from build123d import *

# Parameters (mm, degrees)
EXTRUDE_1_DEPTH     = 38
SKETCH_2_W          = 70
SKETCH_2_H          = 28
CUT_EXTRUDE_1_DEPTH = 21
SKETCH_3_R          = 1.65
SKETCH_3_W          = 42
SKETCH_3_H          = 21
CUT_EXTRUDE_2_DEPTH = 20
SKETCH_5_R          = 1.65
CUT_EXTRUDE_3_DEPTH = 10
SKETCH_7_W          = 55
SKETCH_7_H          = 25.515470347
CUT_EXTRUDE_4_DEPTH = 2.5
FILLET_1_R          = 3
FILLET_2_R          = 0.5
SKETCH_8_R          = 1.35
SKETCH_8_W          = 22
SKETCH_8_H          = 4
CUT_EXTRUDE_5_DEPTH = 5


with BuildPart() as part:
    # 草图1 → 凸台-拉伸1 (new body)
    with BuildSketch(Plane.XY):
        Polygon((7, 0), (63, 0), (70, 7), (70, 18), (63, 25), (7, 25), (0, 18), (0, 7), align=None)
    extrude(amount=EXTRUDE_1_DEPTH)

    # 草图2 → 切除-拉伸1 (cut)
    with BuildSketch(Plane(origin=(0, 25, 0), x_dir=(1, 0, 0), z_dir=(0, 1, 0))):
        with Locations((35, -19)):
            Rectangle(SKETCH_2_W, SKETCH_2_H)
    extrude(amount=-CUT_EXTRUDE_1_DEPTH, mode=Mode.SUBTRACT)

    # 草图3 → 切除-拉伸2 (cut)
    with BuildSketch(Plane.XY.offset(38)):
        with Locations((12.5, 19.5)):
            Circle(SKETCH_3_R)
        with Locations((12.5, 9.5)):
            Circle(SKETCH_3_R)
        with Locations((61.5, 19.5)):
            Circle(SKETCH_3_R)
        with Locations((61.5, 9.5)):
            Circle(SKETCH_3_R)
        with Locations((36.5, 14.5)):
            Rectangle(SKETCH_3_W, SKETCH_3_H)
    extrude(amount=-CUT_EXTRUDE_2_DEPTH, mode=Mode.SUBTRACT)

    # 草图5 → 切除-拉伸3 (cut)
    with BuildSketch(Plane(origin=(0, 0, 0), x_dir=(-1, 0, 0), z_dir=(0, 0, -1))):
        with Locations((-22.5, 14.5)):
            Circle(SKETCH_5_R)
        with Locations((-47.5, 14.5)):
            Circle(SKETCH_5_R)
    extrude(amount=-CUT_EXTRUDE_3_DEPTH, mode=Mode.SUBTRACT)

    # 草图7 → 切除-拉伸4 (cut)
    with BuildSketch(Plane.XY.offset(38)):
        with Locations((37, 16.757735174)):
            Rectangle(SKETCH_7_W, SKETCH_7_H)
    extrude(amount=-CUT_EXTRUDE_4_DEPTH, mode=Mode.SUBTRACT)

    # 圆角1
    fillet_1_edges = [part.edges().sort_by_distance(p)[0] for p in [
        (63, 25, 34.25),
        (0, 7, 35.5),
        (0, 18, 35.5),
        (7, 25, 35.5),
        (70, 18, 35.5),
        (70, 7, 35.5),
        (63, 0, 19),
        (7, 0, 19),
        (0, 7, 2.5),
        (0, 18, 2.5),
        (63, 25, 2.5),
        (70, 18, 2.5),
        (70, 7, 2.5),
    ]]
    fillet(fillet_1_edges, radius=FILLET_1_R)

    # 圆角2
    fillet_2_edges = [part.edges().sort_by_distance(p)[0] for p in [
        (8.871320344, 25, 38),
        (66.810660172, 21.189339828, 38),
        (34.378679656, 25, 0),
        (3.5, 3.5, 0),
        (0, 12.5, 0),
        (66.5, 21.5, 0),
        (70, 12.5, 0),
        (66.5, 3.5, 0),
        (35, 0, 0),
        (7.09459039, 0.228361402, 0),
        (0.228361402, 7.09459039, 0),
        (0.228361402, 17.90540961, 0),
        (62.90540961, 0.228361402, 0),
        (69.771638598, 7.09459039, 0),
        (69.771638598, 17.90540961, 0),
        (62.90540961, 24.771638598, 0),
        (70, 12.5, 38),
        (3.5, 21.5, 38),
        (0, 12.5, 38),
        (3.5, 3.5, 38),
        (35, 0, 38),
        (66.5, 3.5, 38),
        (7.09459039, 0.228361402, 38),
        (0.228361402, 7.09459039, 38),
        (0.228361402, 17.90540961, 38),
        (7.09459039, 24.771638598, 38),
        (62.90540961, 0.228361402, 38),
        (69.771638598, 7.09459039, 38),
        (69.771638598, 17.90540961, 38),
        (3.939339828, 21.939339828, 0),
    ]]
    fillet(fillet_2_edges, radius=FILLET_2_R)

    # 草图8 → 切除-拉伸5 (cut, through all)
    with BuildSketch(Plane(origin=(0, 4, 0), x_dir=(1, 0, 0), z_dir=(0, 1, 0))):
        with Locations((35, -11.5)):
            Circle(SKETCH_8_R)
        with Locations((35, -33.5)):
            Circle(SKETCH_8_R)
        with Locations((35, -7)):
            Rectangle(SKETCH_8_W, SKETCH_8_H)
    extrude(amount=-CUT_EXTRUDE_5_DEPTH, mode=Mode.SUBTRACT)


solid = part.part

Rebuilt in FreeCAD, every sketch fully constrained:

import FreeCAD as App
import Part
import Sketcher


def edges_at(feature, points):
    """Names of the edges that pass closest to the given points."""
    edges = feature.Shape.Edges
    near = lambda p: min(range(len(edges)), key=lambda i: edges[i].distToShape(Part.Vertex(*p))[0])
    return sorted({f"Edge{near(p) + 1}" for p in points})


def add_polygon(sketch, points):
    """Adds a closed chain of lines whose ends are joined by coincident constraints."""
    first, n = sketch.GeometryCount, len(points)
    for a, b in zip(points, points[1:] + points[:1]):
        sketch.addGeometry(Part.LineSegment(App.Vector(*a, 0), App.Vector(*b, 0)), False)
    for i in range(n):
        sketch.addConstraint(Sketcher.Constraint("Coincident", first + i, 2, first + (i + 1) % n, 1))

doc = App.newDocument("Part")
body = doc.addObject("PartDesign::Body", "Body")

sketch1 = body.newObject("Sketcher::SketchObject", "Sketch")
sketch1.AttachmentSupport = (doc.getObject("XY_Plane"), [""])
sketch1.MapMode = "FlatFace"
add_polygon(sketch1, [(7, 0), (63, 0), (70, 7), (70, 18), (63, 25), (7, 25), (0, 18), (0, 7)])
sketch1.addConstraint([
    Sketcher.Constraint("Horizontal", 0),
    Sketcher.Constraint("Vertical", 2),
    Sketcher.Constraint("Horizontal", 4),
    Sketcher.Constraint("Vertical", 6),
    Sketcher.Constraint("PointOnObject", 0, 2, -1),
    Sketcher.Constraint("PointOnObject", 5, 2, -2),
    Sketcher.Constraint("Perpendicular", 1, 3),
    Sketcher.Constraint("Perpendicular", 3, 5),
    Sketcher.Constraint("Perpendicular", 5, 7),
    Sketcher.Constraint("Horizontal", 2, 2, 5, 2),
    Sketcher.Constraint("Horizontal", 1, 2, 6, 2),
    Sketcher.Constraint("Vertical", 0, 2, 3, 2),
    Sketcher.Constraint("Vertical", 4, 2, 7, 2),
    Sketcher.Constraint("DistanceX", 0, 1, 0, 2, 56.0),
    Sketcher.Constraint("DistanceY", 2, 1, 2, 2, 11.0),
    Sketcher.Constraint("DistanceX", -1, 1, 0, 2, 63.0),
])
pad1 = body.newObject("PartDesign::Pad", "Pad")
pad1.Profile = sketch1
pad1.Length = 38

sketch2 = body.newObject("Sketcher::SketchObject", "Sketch001")
sketch2.AttachmentSupport = (doc.getObject("XZ_Plane"), [""])
sketch2.MapMode = "FlatFace"
sketch2.AttachmentOffset = App.Placement(App.Vector(0, 0, -25), App.Rotation())
add_polygon(sketch2, [(0, 5), (0, 33), (70, 33), (70, 5)])
sketch2.addConstraint([
    Sketcher.Constraint("Vertical", 0),
    Sketcher.Constraint("Horizontal", 1),
    Sketcher.Constraint("Vertical", 2),
    Sketcher.Constraint("Horizontal", 3),
    Sketcher.Constraint("PointOnObject", 0, 2, -2),
    Sketcher.Constraint("DistanceX", 1, 1, 1, 2, 70.0),
    Sketcher.Constraint("DistanceY", 0, 1, 0, 2, 28.0),
    Sketcher.Constraint("DistanceY", -1, 1, 0, 2, 33.0),
])
pocket1 = body.newObject("PartDesign::Pocket", "Pocket")
pocket1.Profile = sketch2
pocket1.Length = 21
pocket1.Reversed = True

sketch3 = body.newObject("Sketcher::SketchObject", "Sketch002")
sketch3.AttachmentSupport = (doc.getObject("XY_Plane"), [""])
sketch3.MapMode = "FlatFace"
sketch3.AttachmentOffset = App.Placement(App.Vector(0, 0, 38), App.Rotation())
sketch3.addGeometry(Part.Circle(App.Vector(12.5, 19.5, 0), App.Vector(0, 0, 1), 1.65), False)
sketch3.addGeometry(Part.Circle(App.Vector(12.5, 9.5, 0), App.Vector(0, 0, 1), 1.65), False)
sketch3.addGeometry(Part.Circle(App.Vector(61.5, 19.5, 0), App.Vector(0, 0, 1), 1.65), False)
sketch3.addGeometry(Part.Circle(App.Vector(61.5, 9.5, 0), App.Vector(0, 0, 1), 1.65), False)
add_polygon(sketch3, [(15.5, 25), (15.5, 4), (57.5, 4), (57.5, 25)])
sketch3.addConstraint([
    Sketcher.Constraint("Vertical", 4),
    Sketcher.Constraint("Horizontal", 5),
    Sketcher.Constraint("Vertical", 6),
    Sketcher.Constraint("Horizontal", 7),
    Sketcher.Constraint("Equal", 0, 1),
    Sketcher.Constraint("Equal", 1, 2),
    Sketcher.Constraint("Equal", 2, 3),
    Sketcher.Constraint("Horizontal", 0, 3, 2, 3),
    Sketcher.Constraint("Horizontal", 1, 3, 3, 3),
    Sketcher.Constraint("Vertical", 0, 3, 1, 3),
    Sketcher.Constraint("Vertical", 2, 3, 3, 3),
    Sketcher.Constraint("Diameter", 0, 3.3),
    Sketcher.Constraint("DistanceX", 5, 1, 5, 2, 42.0),
    Sketcher.Constraint("DistanceY", 4, 2, 4, 1, 21.0),
    Sketcher.Constraint("DistanceY", -1, 1, 4, 2, 4.0),
    Sketcher.Constraint("DistanceY", 1, 3, 0, 3, 10.0),
    Sketcher.Constraint("DistanceX", 0, 3, 2, 3, 49.0),
    Sketcher.Constraint("DistanceX", 1, 3, 4, 2, 3.0),
    Sketcher.Constraint("DistanceX", -1, 1, 0, 3, 12.5),
    Sketcher.Constraint("DistanceY", -1, 1, 0, 3, 19.5),
])
pocket2 = body.newObject("PartDesign::Pocket", "Pocket001")
pocket2.Profile = sketch3
pocket2.Length = 20

sketch4 = body.newObject("Sketcher::SketchObject", "Sketch003")
sketch4.AttachmentSupport = (doc.getObject("XY_Plane"), [""])
sketch4.MapMode = "FlatFace"
sketch4.addGeometry([
    Part.Circle(App.Vector(22.5, 14.5, 0), App.Vector(0, 0, 1), 1.65),
    Part.Circle(App.Vector(47.5, 14.5, 0), App.Vector(0, 0, 1), 1.65),
], False)
sketch4.addConstraint([
    Sketcher.Constraint("Equal", 0, 1),
    Sketcher.Constraint("Horizontal", 0, 3, 1, 3),
    Sketcher.Constraint("Diameter", 0, 3.3),
    Sketcher.Constraint("DistanceX", 0, 3, 1, 3, 25.0),
    Sketcher.Constraint("DistanceX", -1, 1, 0, 3, 22.5),
    Sketcher.Constraint("DistanceY", -1, 1, 0, 3, 14.5),
])
pocket3 = body.newObject("PartDesign::Pocket", "Pocket002")
pocket3.Profile = sketch4
pocket3.Length = 10
pocket3.Reversed = True

sketch5 = body.newObject("Sketcher::SketchObject", "Sketch004")
sketch5.AttachmentSupport = (doc.getObject("XY_Plane"), [""])
sketch5.MapMode = "FlatFace"
sketch5.AttachmentOffset = App.Placement(App.Vector(0, 0, 38), App.Rotation())
add_polygon(sketch5, [(9.5, 29.51547), (9.5, 4), (64.5, 4), (64.5, 29.51547)])
sketch5.addConstraint([
    Sketcher.Constraint("Vertical", 0),
    Sketcher.Constraint("Horizontal", 1),
    Sketcher.Constraint("Vertical", 2),
    Sketcher.Constraint("Horizontal", 3),
    Sketcher.Constraint("DistanceX", 1, 1, 1, 2, 55.0),
    Sketcher.Constraint("DistanceY", -1, 1, 0, 2, 4.0),
    Sketcher.Constraint("DistanceX", -1, 1, 0, 2, 9.5),
    Sketcher.Constraint("DistanceY", 0, 2, 0, 1, 25.51547),
])
pocket4 = body.newObject("PartDesign::Pocket", "Pocket003")
pocket4.Profile = sketch5
pocket4.Length = 2.5
doc.recompute()

fillet = body.newObject("PartDesign::Fillet", "Fillet")
fillet.Base = (pocket4, edges_at(pocket4, [
    (63, 25, 34.25),
    (0, 7, 35.5),
    (0, 18, 35.5),
    (7, 25, 35.5),
    (70, 18, 35.5),
    (70, 7, 35.5),
    (63, 0, 19),
    (7, 0, 19),
    (0, 7, 2.5),
    (0, 18, 2.5),
    (63, 25, 2.5),
    (70, 18, 2.5),
    (70, 7, 2.5),
]))
fillet.Radius = 3
doc.recompute()

fillet2 = body.newObject("PartDesign::Fillet", "Fillet001")
fillet2.Base = (fillet, edges_at(fillet, [
    (8.871, 25, 38),
    (66.811, 21.189, 38),
    (34.379, 25, 0),
    (3.5, 3.5, 0),
    (0, 12.5, 0),
    (66.5, 21.5, 0),
    (70, 12.5, 0),
    (66.5, 3.5, 0),
    (35, 0, 0),
    (7.095, 0.228, 0),
    (0.228, 7.095, 0),
    (0.228, 17.905, 0),
    (62.905, 0.228, 0),
    (69.772, 7.095, 0),
    (69.772, 17.905, 0),
    (62.905, 24.772, 0),
    (70, 12.5, 38),
    (3.5, 21.5, 38),
    (0, 12.5, 38),
    (3.5, 3.5, 38),
    (35, 0, 38),
    (66.5, 3.5, 38),
    (7.095, 0.228, 38),
    (0.228, 7.095, 38),
    (0.228, 17.905, 38),
    (7.095, 24.772, 38),
    (62.905, 0.228, 38),
    (69.772, 7.095, 38),
    (69.772, 17.905, 38),
    (3.939, 21.939, 0),
]))
fillet2.Radius = 0.5

sketch6 = body.newObject("Sketcher::SketchObject", "Sketch005")
sketch6.AttachmentSupport = (doc.getObject("XZ_Plane"), [""])
sketch6.MapMode = "FlatFace"
sketch6.AttachmentOffset = App.Placement(App.Vector(0, 0, -4), App.Rotation())
sketch6.addGeometry(Part.Circle(App.Vector(35, 11.5, 0), App.Vector(0, 0, 1), 1.35), False)
sketch6.addGeometry(Part.Circle(App.Vector(35, 33.5, 0), App.Vector(0, 0, 1), 1.35), False)
add_polygon(sketch6, [(24, 5), (24, 9), (46, 9), (46, 5)])
sketch6.addConstraint([
    Sketcher.Constraint("Vertical", 2),
    Sketcher.Constraint("Horizontal", 3),
    Sketcher.Constraint("Vertical", 4),
    Sketcher.Constraint("Horizontal", 5),
    Sketcher.Constraint("Equal", 0, 1),
    Sketcher.Constraint("Vertical", 0, 3, 1, 3),
    Sketcher.Constraint("Diameter", 0, 2.7),
    Sketcher.Constraint("DistanceX", 3, 1, 3, 2, 22.0),
    Sketcher.Constraint("DistanceY", 2, 1, 2, 2, 4.0),
    Sketcher.Constraint("DistanceX", -1, 1, 0, 3, 35.0),
    Sketcher.Constraint("DistanceX", -1, 1, 2, 2, 24.0),
    Sketcher.Constraint("DistanceY", -1, 1, 2, 2, 9.0),
    Sketcher.Constraint("DistanceY", 0, 3, 1, 3, 22.0),
    Sketcher.Constraint("DistanceY", -1, 1, 0, 3, 11.5),
])
pocket5 = body.newObject("PartDesign::Pocket", "Pocket004")
pocket5.Profile = sketch6
pocket5.Type = "ThroughAll"
pocket5.Reversed = True

doc.recompute()
